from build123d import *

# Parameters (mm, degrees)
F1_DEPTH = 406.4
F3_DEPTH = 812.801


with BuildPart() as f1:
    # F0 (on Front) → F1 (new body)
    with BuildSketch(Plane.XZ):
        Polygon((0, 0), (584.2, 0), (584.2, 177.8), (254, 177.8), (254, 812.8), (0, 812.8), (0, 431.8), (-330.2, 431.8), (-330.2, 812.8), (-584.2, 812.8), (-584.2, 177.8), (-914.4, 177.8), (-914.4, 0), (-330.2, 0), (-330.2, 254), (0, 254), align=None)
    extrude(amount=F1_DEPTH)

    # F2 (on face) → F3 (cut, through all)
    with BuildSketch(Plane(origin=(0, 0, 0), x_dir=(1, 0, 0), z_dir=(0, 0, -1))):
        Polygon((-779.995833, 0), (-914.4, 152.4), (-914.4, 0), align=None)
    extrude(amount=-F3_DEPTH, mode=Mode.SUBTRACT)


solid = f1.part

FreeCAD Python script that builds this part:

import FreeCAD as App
import Part
import Sketcher

V = App.Vector
Q = App.Units.Quantity


def add_polygon(sketch, points):
    """Adds a closed chain of lines whose ends are joined by coincident constraints."""
    first, n = sketch.GeometryCount, len(points)
    for a, b in zip(points, points[1:] + points[:1]):
        sketch.addGeometry(Part.LineSegment(App.Vector(*a, 0), App.Vector(*b, 0)), False)
    for i in range(n):
        sketch.addConstraint(Sketcher.Constraint("Coincident", first + i, 2, first + (i + 1) % n, 1))

doc = App.newDocument("Part")
body = doc.addObject("PartDesign::Body", "Body")

# Sketch on XZ plane
sketch1 = body.newObject("Sketcher::SketchObject", "Sketch")
sketch1.AttachmentSupport = (doc.getObject("XZ_Plane"), [""])
sketch1.MapMode = "FlatFace"
add_polygon(sketch1, [(0, 0), (584.2, 0), (584.2, 177.8), (254, 177.8), (254, 812.8), (0, 812.8), (0, 431.8), (-330.2, 431.8), (-330.2, 812.8), (-584.2, 812.8), (-584.2, 177.8), (-914.4, 177.8), (-914.4, 0), (-330.2, 0), (-330.2, 254), (0, 254)])  # lines 0-15
sketch1.addConstraint([
    Sketcher.Constraint("Horizontal", 0),
    Sketcher.Constraint("Vertical", 1),
    Sketcher.Constraint("Horizontal", 2),
    Sketcher.Constraint("Vertical", 3),
    Sketcher.Constraint("Horizontal", 4),
    Sketcher.Constraint("Vertical", 5),
    Sketcher.Constraint("Horizontal", 6),
    Sketcher.Constraint("Vertical", 7),
    Sketcher.Constraint("Horizontal", 8),
    Sketcher.Constraint("Vertical", 9),
    Sketcher.Constraint("Horizontal", 10),
    Sketcher.Constraint("Vertical", 11),
    Sketcher.Constraint("Horizontal", 12),
    Sketcher.Constraint("Vertical", 13),
    Sketcher.Constraint("Horizontal", 14),
    Sketcher.Constraint("Vertical", 15),
    Sketcher.Constraint("Coincident", 15, 2, -1, 1),
    Sketcher.Constraint("Symmetric", 1, 2, 9, 2, -2),
    Sketcher.Constraint("PointOnObject", 4, 2, -2),
    Sketcher.Constraint("PointOnObject", 11, 2, -1),
    Sketcher.Constraint("Horizontal", 4, 2, 7, 2),
    Sketcher.Constraint("Vertical", 7, 2, 12, 2),
    Sketcher.Constraint("Equal", 2, 6),
    Sketcher.Constraint("Equal", 6, 10),
    Sketcher.Constraint("Equal", 8, 13),
    Sketcher.Constraint("DistanceX", 0, 1, 0, 2, Q("23 in")),
    Sketcher.Constraint("DistanceX", 2, 2, 2, 1, Q("13 in")),
    Sketcher.Constraint("DistanceY", 1, 1, 1, 2, Q("7 in")),
    Sketcher.Constraint("DistanceY", 3, 1, 3, 2, Q("25 in")),
    Sketcher.Constraint("DistanceY", 5, 2, 5, 1, Q("15 in")),
])
pad1 = body.newObject("PartDesign::Pad", "Pad")
pad1.Profile = sketch1
pad1.Length = Q("16 in")

# Sketch on XY plane
sketch2 = body.newObject("Sketcher::SketchObject", "Sketch001")
sketch2.AttachmentSupport = (doc.getObject("XY_Plane"), [""])
sketch2.MapMode = "FlatFace"
add_polygon(sketch2, [(-779.995833, 0), (-914.4, -152.4), (-914.4, 0)])  # lines 0-2
sketch2.addConstraint([
    Sketcher.Constraint("Vertical", 1),
    Sketcher.Constraint("Horizontal", 2),
    Sketcher.Constraint("PointOnObject", 1, 2, -1),
    Sketcher.Constraint("DistanceY", 1, 1, 1, 2, Q("6 in")),
    Sketcher.Constraint("Distance", 0, Q("8 in")),
    Sketcher.Constraint("DistanceX", 0, 2, -1, 1, Q("36 in")),
])
pocket1 = body.newObject("PartDesign::Pocket", "Pocket")
pocket1.Profile = sketch2
pocket1.Type = "ThroughAll"
pocket1.Reversed = True

doc.recompute()
